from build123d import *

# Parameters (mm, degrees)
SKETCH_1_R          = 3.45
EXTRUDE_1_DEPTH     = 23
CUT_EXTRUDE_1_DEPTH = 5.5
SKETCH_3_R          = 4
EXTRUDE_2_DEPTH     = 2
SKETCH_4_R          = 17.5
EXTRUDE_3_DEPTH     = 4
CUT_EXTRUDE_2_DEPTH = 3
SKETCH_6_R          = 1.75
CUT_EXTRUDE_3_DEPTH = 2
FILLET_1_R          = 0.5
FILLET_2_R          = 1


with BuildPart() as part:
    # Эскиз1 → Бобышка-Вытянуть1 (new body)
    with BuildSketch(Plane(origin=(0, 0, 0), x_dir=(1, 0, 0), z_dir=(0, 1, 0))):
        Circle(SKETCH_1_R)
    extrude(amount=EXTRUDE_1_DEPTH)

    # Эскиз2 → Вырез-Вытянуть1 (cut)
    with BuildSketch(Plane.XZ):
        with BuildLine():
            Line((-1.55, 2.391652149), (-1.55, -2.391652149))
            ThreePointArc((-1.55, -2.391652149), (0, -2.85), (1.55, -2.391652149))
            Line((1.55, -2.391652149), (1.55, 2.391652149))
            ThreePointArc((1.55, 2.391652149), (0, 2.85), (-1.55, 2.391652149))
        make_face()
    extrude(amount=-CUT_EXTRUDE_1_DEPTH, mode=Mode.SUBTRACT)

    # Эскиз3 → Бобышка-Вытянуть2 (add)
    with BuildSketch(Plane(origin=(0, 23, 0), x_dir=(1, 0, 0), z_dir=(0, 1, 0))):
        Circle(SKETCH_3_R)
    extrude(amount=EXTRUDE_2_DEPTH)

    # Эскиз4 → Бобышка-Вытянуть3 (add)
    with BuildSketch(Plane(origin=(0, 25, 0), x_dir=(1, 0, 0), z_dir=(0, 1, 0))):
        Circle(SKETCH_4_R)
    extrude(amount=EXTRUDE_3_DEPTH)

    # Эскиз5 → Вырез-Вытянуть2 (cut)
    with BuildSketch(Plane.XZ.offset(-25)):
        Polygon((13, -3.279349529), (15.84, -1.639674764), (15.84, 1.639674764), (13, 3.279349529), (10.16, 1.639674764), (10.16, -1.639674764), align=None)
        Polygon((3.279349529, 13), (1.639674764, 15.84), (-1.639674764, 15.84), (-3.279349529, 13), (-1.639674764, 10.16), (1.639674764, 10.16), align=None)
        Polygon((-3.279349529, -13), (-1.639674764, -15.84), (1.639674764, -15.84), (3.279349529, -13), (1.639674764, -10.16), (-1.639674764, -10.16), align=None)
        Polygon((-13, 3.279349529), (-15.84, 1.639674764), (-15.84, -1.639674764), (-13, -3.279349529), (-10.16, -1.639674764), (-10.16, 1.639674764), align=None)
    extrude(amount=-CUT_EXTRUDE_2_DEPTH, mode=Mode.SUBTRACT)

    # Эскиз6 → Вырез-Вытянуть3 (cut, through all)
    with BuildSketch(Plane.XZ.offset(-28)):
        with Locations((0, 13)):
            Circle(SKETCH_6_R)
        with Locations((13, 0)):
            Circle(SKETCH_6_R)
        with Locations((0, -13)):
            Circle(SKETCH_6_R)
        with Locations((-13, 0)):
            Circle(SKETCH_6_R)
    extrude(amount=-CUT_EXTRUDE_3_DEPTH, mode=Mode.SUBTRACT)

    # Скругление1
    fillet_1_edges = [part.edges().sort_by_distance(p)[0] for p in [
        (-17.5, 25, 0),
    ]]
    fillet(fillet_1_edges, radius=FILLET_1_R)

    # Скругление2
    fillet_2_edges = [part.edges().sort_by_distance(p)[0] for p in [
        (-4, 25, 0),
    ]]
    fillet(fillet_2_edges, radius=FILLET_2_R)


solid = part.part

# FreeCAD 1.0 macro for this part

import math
import FreeCAD as App
import Part
import Sketcher

V = App.Vector
Q = App.Units.Quantity


def edges_at(feature, points):
    """Names of the edges that pass closest to the given points."""
    edges = feature.Shape.Edges
    near = lambda p: min(range(len(edges)), key=lambda i: edges[i].distToShape(Part.Vertex(*p))[0])
    return sorted({f"Edge{near(p) + 1}" for p in points})

doc = App.newDocument("Part")
body = doc.addObject("PartDesign::Body", "Body")

sketch1 = body.newObject("Sketcher::SketchObject", "Sketch")
sketch1.AttachmentSupport = (doc.getObject("XZ_Plane"), [""])
sketch1.MapMode = "FlatFace"
sketch1.addGeometry(Part.Circle(V(0, 0, 0), V(0, 0, 1), 3.5), False)
sketch1.addConstraint(Sketcher.Constraint("Coincident", 0, 3, -1, 1))
sketch1.addConstraint(Sketcher.Constraint("Diameter", 0, Q("6.9 mm")))
pad1 = body.newObject("PartDesign::Pad", "Pad")
pad1.Profile = sketch1
pad1.Length = 23
pad1.Reversed = True

sketch2 = body.newObject("Sketcher::SketchObject", "Sketch001")
sketch2.AttachmentSupport = (doc.getObject("XZ_Plane"), [""])
sketch2.MapMode = "FlatFace"
sketch2.addGeometry(Part.LineSegment(V(-1.6, 2.4, 0), V(-1.6, -2.4, 0)), False)
sketch2.addGeometry(Part.ArcOfCircle(Part.Circle(V(0, 0, 0), V(0, 0, 1), 2.9), math.radians(-123), math.radians(-57)), False)
sketch2.addGeometry(Part.LineSegment(V(1.6, -2.4, 0), V(1.6, 2.4, 0)), False)
sketch2.addGeometry(Part.ArcOfCircle(Part.Circle(V(0, 0, 0), V(0, 0, 1), 2.9), math.radians(57), math.radians(123)), False)
sketch2.addConstraint(Sketcher.Constraint("Coincident", 0, 2, 1, 1))
sketch2.addConstraint(Sketcher.Constraint("Coincident", 1, 2, 2, 1))
sketch2.addConstraint(Sketcher.Constraint("Coincident", 2, 2, 3, 1))
sketch2.addConstraint(Sketcher.Constraint("Coincident", 3, 2, 0, 1))
sketch2.addConstraint(Sketcher.Constraint("Vertical", 0))
sketch2.addConstraint(Sketcher.Constraint("Vertical", 2))
sketch2.addConstraint(Sketcher.Constraint("Coincident", 1, 3, -1, 1))
sketch2.addConstraint(Sketcher.Constraint("Coincident", 3, 3, -1, 1))
sketch2.addConstraint(Sketcher.Constraint("Equal", 1, 3))
sketch2.addConstraint(Sketcher.Constraint("Horizontal", 0, 2, 1, 2))
sketch2.addConstraint(Sketcher.Constraint("Radius", 1, Q("2.85 mm")))
sketch2.addConstraint(Sketcher.Constraint("DistanceX", 0, 2, 1, 2, Q("3.1 mm")))
pocket1 = body.newObject("PartDesign::Pocket", "Pocket")
pocket1.Profile = sketch2
pocket1.Length = 5.5

sketch3 = body.newObject("Sketcher::SketchObject", "Sketch002")
sketch3.AttachmentSupport = (doc.getObject("XZ_Plane"), [""])
sketch3.MapMode = "FlatFace"
sketch3.AttachmentOffset = App.Placement(V(0, 0, -23), App.Rotation())
sketch3.addGeometry(Part.Circle(V(0, 0, 0), V(0, 0, 1), 4), False)
sketch3.addConstraint(Sketcher.Constraint("Coincident", 0, 3, -1, 1))
sketch3.addConstraint(Sketcher.Constraint("Diameter", 0, Q("8 mm")))
pad2 = body.newObject("PartDesign::Pad", "Pad001")
pad2.Profile = sketch3
pad2.Length = 2
pad2.Reversed = True

sketch4 = body.newObject("Sketcher::SketchObject", "Sketch003")
sketch4.AttachmentSupport = (doc.getObject("XZ_Plane"), [""])
sketch4.MapMode = "FlatFace"
sketch4.AttachmentOffset = App.Placement(V(0, 0, -25), App.Rotation())
sketch4.addGeometry(Part.Circle(V(0, 0, 0), V(0, 0, 1), 18), False)
sketch4.addConstraint(Sketcher.Constraint("Coincident", 0, 3, -1, 1))
sketch4.addConstraint(Sketcher.Constraint("Diameter", 0, Q("35 mm")))
pad3 = body.newObject("PartDesign::Pad", "Pad002")
pad3.Profile = sketch4
pad3.Length = 4
pad3.Reversed = True

sketch5 = body.newObject("Sketcher::SketchObject", "Sketch004")
sketch5.AttachmentSupport = (doc.getObject("XZ_Plane"), [""])
sketch5.MapMode = "FlatFace"
sketch5.AttachmentOffset = App.Placement(V(0, 0, -25), App.Rotation())
sketch5.addGeometry(Part.LineSegment(V(13, -3.3, 0), V(15.8, -1.6, 0)), False)
sketch5.addGeometry(Part.LineSegment(V(15.8, -1.6, 0), V(15.8, 1.6, 0)), False)
sketch5.addGeometry(Part.LineSegment(V(15.8, 1.6, 0), V(13, 3.3, 0)), False)
sketch5.addGeometry(Part.LineSegment(V(13, 3.3, 0), V(10.2, 1.6, 0)), False)
sketch5.addGeometry(Part.LineSegment(V(10.2, 1.6, 0), V(10.2, -1.6, 0)), False)
sketch5.addGeometry(Part.LineSegment(V(10.2, -1.6, 0), V(13, -3.3, 0)), False)
sketch5.addGeometry(Part.LineSegment(V(3.3, 13, 0), V(1.6, 15.8, 0)), False)
sketch5.addGeometry(Part.LineSegment(V(1.6, 15.8, 0), V(-1.6, 15.8, 0)), False)
sketch5.addGeometry(Part.LineSegment(V(-1.6, 15.8, 0), V(-3.3, 13, 0)), False)
sketch5.addGeometry(Part.LineSegment(V(-3.3, 13, 0), V(-1.6, 10.2, 0)), False)
sketch5.addGeometry(Part.LineSegment(V(-1.6, 10.2, 0), V(1.6, 10.2, 0)), False)
sketch5.addGeometry(Part.LineSegment(V(1.6, 10.2, 0), V(3.3, 13, 0)), False)
sketch5.addGeometry(Part.LineSegment(V(-3.3, -13, 0), V(-1.6, -15.8, 0)), False)
sketch5.addGeometry(Part.LineSegment(V(-1.6, -15.8, 0), V(1.6, -15.8, 0)), False)
sketch5.addGeometry(Part.LineSegment(V(1.6, -15.8, 0), V(3.3, -13, 0)), False)
sketch5.addGeometry(Part.LineSegment(V(3.3, -13, 0), V(1.6, -10.2, 0)), False)
sketch5.addGeometry(Part.LineSegment(V(1.6, -10.2, 0), V(-1.6, -10.2, 0)), False)
sketch5.addGeometry(Part.LineSegment(V(-1.6, -10.2, 0), V(-3.3, -13, 0)), False)
sketch5.addGeometry(Part.LineSegment(V(-13, 3.3, 0), V(-15.8, 1.6, 0)), False)
sketch5.addGeometry(Part.LineSegment(V(-15.8, 1.6, 0), V(-15.8, -1.6, 0)), False)
sketch5.addGeometry(Part.LineSegment(V(-15.8, -1.6, 0), V(-13, -3.3, 0)), False)
sketch5.addGeometry(Part.LineSegment(V(-13, -3.3, 0), V(-10.2, -1.6, 0)), False)
sketch5.addGeometry(Part.LineSegment(V(-10.2, -1.6, 0), V(-10.2, 1.6, 0)), False)
sketch5.addGeometry(Part.LineSegment(V(-10.2, 1.6, 0), V(-13, 3.3, 0)), False)
sketch5.addConstraint(Sketcher.Constraint("Coincident", 0, 2, 1, 1))
sketch5.addConstraint(Sketcher.Constraint("Coincident", 1, 2, 2, 1))
sketch5.addConstraint(Sketcher.Constraint("Coincident", 2, 2, 3, 1))
sketch5.addConstraint(Sketcher.Constraint("Coincident", 3, 2, 4, 1))
sketch5.addConstraint(Sketcher.Constraint("Coincident", 4, 2, 5, 1))
sketch5.addConstraint(Sketcher.Constraint("Coincident", 5, 2, 0, 1))
sketch5.addConstraint(Sketcher.Constraint("Coincident", 6, 2, 7, 1))
sketch5.addConstraint(Sketcher.Constraint("Coincident", 7, 2, 8, 1))
sketch5.addConstraint(Sketcher.Constraint("Coincident", 8, 2, 9, 1))
sketch5.addConstraint(Sketcher.Constraint("Coincident", 9, 2, 10, 1))
sketch5.addConstraint(Sketcher.Constraint("Coincident", 10, 2, 11, 1))
sketch5.addConstraint(Sketcher.Constraint("Coincident", 11, 2, 6, 1))
sketch5.addConstraint(Sketcher.Constraint("Coincident", 12, 2, 13, 1))
sketch5.addConstraint(Sketcher.Constraint("Coincident", 13, 2, 14, 1))
sketch5.addConstraint(Sketcher.Constraint("Coincident", 14, 2, 15, 1))
sketch5.addConstraint(Sketcher.Constraint("Coincident", 15, 2, 16, 1))
sketch5.addConstraint(Sketcher.Constraint("Coincident", 16, 2, 17, 1))
sketch5.addConstraint(Sketcher.Constraint("Coincident", 17, 2, 12, 1))
sketch5.addConstraint(Sketcher.Constraint("Coincident", 18, 2, 19, 1))
sketch5.addConstraint(Sketcher.Constraint("Coincident", 19, 2, 20, 1))
sketch5.addConstraint(Sketcher.Constraint("Coincident", 20, 2, 21, 1))
sketch5.addConstraint(Sketcher.Constraint("Coincident", 21, 2, 22, 1))
sketch5.addConstraint(Sketcher.Constraint("Coincident", 22, 2, 23, 1))
sketch5.addConstraint(Sketcher.Constraint("Coincident", 23, 2, 18, 1))
sketch5.addConstraint(Sketcher.Constraint("Vertical", 1))
sketch5.addConstraint(Sketcher.Constraint("Vertical", 4))
sketch5.addConstraint(Sketcher.Constraint("Horizontal", 7))
sketch5.addConstraint(Sketcher.Constraint("Horizontal", 10))
sketch5.addConstraint(Sketcher.Constraint("Horizontal", 13))
sketch5.addConstraint(Sketcher.Constraint("Horizontal", 16))
sketch5.addConstraint(Sketcher.Constraint("Vertical", 19))
sketch5.addConstraint(Sketcher.Constraint("Vertical", 22))
sketch5.addConstraint(Sketcher.Constraint("Symmetric", 6, 2, 12, 2, -1, 1))
sketch5.addConstraint(Sketcher.Constraint("Symmetric", 8, 2, 14, 2, -1, 1))
sketch5.addConstraint(Sketcher.Constraint("Symmetric", 9, 2, 15, 2, -1, 1))
sketch5.addConstraint(Sketcher.Constraint("Symmetric", 11, 2, 17, 2, -1, 1))
sketch5.addConstraint(Sketcher.Constraint("Symmetric", 0, 2, 18, 2, -1, 1))
sketch5.addConstraint(Sketcher.Constraint("Symmetric", 2, 2, 20, 2, -1, 1))
sketch5.addConstraint(Sketcher.Constraint("Symmetric", 3, 2, 21, 2, -1, 1))
sketch5.addConstraint(Sketcher.Constraint("Symmetric", 5, 2, 23, 2, -1, 1))
sketch5.addConstraint(Sketcher.Constraint("Symmetric", 8, 2, 11, 2, -2))
sketch5.addConstraint(Sketcher.Constraint("Symmetric", 5, 2, 20, 2, -2))
sketch5.addConstraint(Sketcher.Constraint("Parallel", 0, 3))
sketch5.addConstraint(Sketcher.Constraint("Parallel", 2, 5))
sketch5.addConstraint(Sketcher.Constraint("Perpendicular", 3, 6))
sketch5.addConstraint(Sketcher.Constraint("Perpendicular", 5, 8))
sketch5.addConstraint(Sketcher.Constraint("Parallel", 6, 9))
sketch5.addConstraint(Sketcher.Constraint("Parallel", 8, 11))
sketch5.addConstraint(Sketcher.Constraint("Parallel", 11, 14))
sketch5.addConstraint(Sketcher.Constraint("Parallel", 14, 17))
sketch5.addConstraint(Sketcher.Constraint("Perpendicular", 17, 20))
sketch5.addConstraint(Sketcher.Constraint("Parallel", 20, 23))
sketch5.addConstraint(Sketcher.Constraint("Horizontal", 1, 2, 3, 2))
sketch5.addConstraint(Sketcher.Constraint("Horizontal", 0, 2, 4, 2))
sketch5.addConstraint(Sketcher.Constraint("Vertical", 7, 2, 9, 2))
sketch5.addConstraint(Sketcher.Constraint("Equal", 16, 1))
sketch5.addConstraint(Sketcher.Constraint("Equal", 5, 6))
sketch5.addConstraint(Sketcher.Constraint("Angle", 0, Q("30 deg")))
sketch5.addConstraint(Sketcher.Constraint("DistanceX", -1, 1, 2, 2, Q("13 mm")))
sketch5.addConstraint(Sketcher.Constraint("DistanceY", -1, 1, 8, 2, Q("13 mm")))
sketch5.addConstraint(Sketcher.Constraint("DistanceX", -1, 1, 0, 2, Q("15.84 mm")))
sketch5.addConstraint(Sketcher.Constraint("DistanceX", 7, 2, 7, 1, Q("3.27935 mm")))
pocket2 = body.newObject("PartDesign::Pocket", "Pocket001")
pocket2.Profile = sketch5
pocket2.Length = 3

sketch6 = body.newObject("Sketcher::SketchObject", "Sketch005")
sketch6.AttachmentSupport = (doc.getObject("XZ_Plane"), [""])
sketch6.MapMode = "FlatFace"
sketch6.AttachmentOffset = App.Placement(V(0, 0, -28), App.Rotation())
sketch6.addGeometry(Part.Circle(V(0, 13, 0), V(0, 0, 1), 1.8), False)
sketch6.addGeometry(Part.Circle(V(13, 0, 0), V(0, 0, 1), 1.8), False)
sketch6.addGeometry(Part.Circle(V(0, -13, 0), V(0, 0, 1), 1.8), False)
sketch6.addGeometry(Part.Circle(V(-13, 0, 0), V(0, 0, 1), 1.8), False)
sketch6.addConstraint(Sketcher.Constraint("Equal", 0, 1))
sketch6.addConstraint(Sketcher.Constraint("Equal", 1, 2))
sketch6.addConstraint(Sketcher.Constraint("Equal", 2, 3))
sketch6.addConstraint(Sketcher.Constraint("Symmetric", 0, 3, 2, 3, -1, 1))
sketch6.addConstraint(Sketcher.Constraint("Symmetric", 1, 3, 3, 3, -1, 1))
sketch6.addConstraint(Sketcher.Constraint("PointOnObject", 0, 3, -2))
sketch6.addConstraint(Sketcher.Constraint("PointOnObject", 1, 3, -1))
sketch6.addConstraint(Sketcher.Constraint("Diameter", 0, Q("3.5 mm")))
sketch6.addConstraint(Sketcher.Constraint("DistanceY", -1, 1, 0, 3, Q("13 mm")))
sketch6.addConstraint(Sketcher.Constraint("DistanceX", -1, 1, 1, 3, Q("13 mm")))
pocket3 = body.newObject("PartDesign::Pocket", "Pocket002")
pocket3.Profile = sketch6
pocket3.Type = "ThroughAll"
doc.recompute()

fillet = body.newObject("PartDesign::Fillet", "Fillet")
fillet.Base = (pocket3, edges_at(pocket3, [(-17.5, 25, 0)]))
fillet.Radius = 0.5
doc.recompute()

fillet2 = body.newObject("PartDesign::Fillet", "Fillet001")
fillet2.Base = (fillet, edges_at(fillet, [(-4, 25, 0)]))
fillet2.Radius = 1

doc.recompute()
